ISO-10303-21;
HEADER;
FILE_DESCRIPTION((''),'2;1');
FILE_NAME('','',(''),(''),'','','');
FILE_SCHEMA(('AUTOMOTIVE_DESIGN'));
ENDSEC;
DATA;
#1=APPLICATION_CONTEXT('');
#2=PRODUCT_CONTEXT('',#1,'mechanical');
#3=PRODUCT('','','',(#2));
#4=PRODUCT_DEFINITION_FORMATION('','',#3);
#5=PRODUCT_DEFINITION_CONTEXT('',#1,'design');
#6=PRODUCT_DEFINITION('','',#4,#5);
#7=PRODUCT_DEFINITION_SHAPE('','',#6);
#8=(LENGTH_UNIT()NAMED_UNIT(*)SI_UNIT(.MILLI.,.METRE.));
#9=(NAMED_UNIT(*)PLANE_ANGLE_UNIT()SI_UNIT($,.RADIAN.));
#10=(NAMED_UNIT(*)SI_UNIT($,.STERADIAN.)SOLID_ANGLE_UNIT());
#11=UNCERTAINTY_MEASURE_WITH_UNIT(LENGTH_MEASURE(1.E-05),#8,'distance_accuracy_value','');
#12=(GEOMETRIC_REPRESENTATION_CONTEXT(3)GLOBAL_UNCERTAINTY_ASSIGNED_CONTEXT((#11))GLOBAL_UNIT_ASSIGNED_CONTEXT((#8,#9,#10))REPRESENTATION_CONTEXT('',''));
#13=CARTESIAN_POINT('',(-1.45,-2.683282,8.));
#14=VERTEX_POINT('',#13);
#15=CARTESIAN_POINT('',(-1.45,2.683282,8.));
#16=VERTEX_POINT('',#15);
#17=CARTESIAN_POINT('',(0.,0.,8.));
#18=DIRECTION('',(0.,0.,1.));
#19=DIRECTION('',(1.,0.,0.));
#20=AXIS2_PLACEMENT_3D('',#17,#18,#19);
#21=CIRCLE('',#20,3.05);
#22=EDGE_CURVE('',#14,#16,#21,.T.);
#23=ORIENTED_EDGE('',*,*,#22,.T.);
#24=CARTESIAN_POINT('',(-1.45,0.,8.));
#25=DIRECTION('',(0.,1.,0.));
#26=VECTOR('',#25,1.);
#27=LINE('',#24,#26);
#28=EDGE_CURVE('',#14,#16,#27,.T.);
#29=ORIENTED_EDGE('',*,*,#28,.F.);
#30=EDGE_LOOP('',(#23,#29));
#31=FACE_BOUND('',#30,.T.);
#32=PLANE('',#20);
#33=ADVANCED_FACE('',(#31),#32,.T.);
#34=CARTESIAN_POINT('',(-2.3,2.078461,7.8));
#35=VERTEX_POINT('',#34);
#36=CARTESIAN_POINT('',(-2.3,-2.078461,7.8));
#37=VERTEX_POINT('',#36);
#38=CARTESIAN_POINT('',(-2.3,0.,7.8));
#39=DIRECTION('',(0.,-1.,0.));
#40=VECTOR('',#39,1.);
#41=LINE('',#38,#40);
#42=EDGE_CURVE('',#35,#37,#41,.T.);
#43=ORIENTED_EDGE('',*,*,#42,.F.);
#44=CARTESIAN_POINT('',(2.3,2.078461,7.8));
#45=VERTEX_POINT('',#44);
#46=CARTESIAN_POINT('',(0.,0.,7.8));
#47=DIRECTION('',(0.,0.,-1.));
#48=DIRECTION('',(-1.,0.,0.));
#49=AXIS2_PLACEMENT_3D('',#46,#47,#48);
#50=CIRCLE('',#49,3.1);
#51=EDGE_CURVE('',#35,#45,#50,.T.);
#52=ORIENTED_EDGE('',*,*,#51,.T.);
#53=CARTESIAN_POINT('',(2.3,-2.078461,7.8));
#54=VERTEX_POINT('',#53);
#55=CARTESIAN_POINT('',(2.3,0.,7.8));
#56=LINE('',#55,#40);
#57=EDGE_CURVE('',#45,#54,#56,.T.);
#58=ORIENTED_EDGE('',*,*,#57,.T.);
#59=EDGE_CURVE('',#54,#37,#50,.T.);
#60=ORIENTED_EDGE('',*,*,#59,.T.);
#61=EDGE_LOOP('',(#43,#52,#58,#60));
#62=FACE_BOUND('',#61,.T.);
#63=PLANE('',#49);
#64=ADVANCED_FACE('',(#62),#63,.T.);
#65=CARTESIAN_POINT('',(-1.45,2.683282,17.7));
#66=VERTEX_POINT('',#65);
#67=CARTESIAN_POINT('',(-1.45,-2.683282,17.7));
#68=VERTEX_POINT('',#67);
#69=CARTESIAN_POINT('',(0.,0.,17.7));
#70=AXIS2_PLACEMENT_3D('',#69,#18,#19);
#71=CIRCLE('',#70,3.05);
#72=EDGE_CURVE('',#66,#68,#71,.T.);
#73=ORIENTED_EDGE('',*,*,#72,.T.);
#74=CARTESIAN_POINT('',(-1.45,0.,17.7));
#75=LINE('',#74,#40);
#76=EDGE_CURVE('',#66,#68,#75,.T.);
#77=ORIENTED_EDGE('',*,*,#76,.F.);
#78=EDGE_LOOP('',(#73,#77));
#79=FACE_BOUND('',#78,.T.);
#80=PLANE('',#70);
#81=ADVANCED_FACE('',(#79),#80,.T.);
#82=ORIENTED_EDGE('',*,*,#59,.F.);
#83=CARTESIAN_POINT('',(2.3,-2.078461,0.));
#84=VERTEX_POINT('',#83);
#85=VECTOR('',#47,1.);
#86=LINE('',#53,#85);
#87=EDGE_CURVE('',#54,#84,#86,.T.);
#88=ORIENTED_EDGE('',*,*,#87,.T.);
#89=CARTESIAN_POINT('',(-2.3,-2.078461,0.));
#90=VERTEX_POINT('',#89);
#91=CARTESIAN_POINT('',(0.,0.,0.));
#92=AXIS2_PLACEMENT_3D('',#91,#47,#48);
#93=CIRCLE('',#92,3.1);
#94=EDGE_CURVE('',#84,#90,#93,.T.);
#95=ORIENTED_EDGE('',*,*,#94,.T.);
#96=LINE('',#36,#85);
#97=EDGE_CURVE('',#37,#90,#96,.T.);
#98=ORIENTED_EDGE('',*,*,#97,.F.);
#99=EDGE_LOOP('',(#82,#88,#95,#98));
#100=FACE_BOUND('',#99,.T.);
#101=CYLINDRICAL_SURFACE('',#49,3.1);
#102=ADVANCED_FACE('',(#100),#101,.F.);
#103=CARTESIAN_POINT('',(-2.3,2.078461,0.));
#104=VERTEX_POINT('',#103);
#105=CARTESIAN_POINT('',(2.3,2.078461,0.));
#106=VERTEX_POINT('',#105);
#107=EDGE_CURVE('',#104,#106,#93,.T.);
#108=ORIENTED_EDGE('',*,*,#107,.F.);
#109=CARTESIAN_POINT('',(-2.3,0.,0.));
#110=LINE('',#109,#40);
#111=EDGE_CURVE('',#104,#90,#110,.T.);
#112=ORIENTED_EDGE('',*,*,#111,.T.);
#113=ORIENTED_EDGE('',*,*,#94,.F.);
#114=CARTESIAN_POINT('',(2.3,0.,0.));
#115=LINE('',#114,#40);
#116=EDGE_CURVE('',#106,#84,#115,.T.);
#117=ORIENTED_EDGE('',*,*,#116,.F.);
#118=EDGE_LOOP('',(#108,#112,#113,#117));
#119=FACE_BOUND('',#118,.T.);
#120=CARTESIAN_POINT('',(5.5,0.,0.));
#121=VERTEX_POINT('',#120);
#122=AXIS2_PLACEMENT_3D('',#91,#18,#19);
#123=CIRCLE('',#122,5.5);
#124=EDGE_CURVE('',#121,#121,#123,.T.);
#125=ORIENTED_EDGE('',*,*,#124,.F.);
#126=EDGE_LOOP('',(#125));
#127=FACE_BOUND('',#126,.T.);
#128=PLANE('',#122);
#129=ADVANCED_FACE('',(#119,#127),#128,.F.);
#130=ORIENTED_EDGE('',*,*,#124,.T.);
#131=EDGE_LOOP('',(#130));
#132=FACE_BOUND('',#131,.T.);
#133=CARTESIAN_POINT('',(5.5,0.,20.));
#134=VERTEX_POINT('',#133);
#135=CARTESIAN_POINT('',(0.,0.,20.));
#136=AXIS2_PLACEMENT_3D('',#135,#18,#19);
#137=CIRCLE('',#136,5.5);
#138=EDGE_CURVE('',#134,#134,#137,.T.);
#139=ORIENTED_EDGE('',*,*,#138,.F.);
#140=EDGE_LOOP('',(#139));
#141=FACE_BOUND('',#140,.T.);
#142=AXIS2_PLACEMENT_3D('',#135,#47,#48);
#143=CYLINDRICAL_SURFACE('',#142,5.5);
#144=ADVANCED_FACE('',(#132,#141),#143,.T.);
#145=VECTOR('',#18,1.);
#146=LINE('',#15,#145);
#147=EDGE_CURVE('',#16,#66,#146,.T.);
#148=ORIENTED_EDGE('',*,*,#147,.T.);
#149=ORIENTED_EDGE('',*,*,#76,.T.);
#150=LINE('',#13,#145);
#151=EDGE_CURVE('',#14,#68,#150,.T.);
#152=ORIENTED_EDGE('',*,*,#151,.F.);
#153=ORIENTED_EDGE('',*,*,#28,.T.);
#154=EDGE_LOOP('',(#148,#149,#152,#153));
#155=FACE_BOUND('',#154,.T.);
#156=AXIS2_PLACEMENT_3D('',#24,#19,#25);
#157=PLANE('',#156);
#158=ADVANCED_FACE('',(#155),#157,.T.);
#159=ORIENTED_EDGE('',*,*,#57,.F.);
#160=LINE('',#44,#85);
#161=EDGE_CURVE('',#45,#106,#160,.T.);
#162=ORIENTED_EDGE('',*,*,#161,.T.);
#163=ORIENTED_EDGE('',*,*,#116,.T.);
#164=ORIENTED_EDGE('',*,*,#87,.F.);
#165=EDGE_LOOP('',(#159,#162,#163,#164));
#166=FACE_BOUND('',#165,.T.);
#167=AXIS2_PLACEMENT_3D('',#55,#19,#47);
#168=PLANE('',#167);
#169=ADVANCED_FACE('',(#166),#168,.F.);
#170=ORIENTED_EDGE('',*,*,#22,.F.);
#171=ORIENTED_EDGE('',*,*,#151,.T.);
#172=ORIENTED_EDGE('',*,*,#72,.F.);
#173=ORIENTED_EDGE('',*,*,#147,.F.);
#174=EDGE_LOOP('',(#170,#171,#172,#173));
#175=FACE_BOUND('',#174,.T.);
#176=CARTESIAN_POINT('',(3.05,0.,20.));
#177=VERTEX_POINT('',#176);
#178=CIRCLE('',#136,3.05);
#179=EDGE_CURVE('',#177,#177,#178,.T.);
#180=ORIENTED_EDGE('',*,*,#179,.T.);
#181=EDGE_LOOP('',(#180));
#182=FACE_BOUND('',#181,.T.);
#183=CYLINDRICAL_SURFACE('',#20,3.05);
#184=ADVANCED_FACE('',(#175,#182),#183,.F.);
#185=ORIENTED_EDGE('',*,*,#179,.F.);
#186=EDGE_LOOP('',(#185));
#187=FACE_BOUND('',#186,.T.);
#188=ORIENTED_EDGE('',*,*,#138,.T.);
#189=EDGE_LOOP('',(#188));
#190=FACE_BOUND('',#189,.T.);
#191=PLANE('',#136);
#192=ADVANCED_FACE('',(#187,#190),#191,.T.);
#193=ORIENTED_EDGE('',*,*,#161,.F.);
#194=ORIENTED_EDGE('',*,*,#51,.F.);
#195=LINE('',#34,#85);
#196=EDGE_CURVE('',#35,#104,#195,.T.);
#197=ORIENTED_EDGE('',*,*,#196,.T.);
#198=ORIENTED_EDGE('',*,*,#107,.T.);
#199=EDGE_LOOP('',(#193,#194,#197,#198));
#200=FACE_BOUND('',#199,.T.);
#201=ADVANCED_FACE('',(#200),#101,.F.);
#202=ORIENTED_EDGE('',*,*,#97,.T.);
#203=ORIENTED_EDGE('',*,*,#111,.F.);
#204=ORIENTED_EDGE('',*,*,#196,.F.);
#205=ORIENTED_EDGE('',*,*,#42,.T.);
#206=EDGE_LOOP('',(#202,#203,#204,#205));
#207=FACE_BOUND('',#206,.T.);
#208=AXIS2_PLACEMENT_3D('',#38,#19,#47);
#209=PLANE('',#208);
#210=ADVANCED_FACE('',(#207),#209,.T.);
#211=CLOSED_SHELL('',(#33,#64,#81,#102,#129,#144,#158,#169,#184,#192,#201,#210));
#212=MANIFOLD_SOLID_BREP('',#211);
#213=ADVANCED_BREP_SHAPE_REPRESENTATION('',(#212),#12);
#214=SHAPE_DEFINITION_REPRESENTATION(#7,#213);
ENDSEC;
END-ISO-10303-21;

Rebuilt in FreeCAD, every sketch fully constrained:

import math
import FreeCAD as App
import Part
import Sketcher

V = App.Vector

doc = App.newDocument("Part")
body = doc.addObject("PartDesign::Body", "Body")

# Sketch on XY plane
sketch1 = doc.addObject("Sketcher::SketchObject", "Sketch")
body.addObject(sketch1)
sketch1.AttachmentSupport = (doc.XY_Plane, [""])
sketch1.MapMode = "FlatFace"
sketch1.addGeometry(Part.Circle(V(0, 0, 0), V(0, 0, 1), 6), False)
sketch1.addConstraint([
    Sketcher.Constraint("Coincident", 0, 3, -1, 1),
    Sketcher.Constraint("Diameter", 0, 11.0),
])
pad1 = doc.addObject("PartDesign::Pad", "Pad")
body.addObject(pad1)
pad1.Profile = sketch1
pad1.Length = 20

# Sketch on XY plane
sketch2 = doc.addObject("Sketcher::SketchObject", "Sketch001")
body.addObject(sketch2)
sketch2.AttachmentSupport = (doc.XY_Plane, [""])
sketch2.MapMode = "FlatFace"
sketch2.AttachmentOffset = App.Placement(V(0, 0, 20), App.Rotation())
sketch2.addGeometry([
    Part.ArcOfCircle(Part.Circle(V(0, 0, 0), V(0, 0, 1), 3), math.radians(-118), math.radians(118)),
    Part.LineSegment(V(-1.4, 2.7, 0), V(-1.4, -2.7, 0)),
], False)
sketch2.addConstraint([
    Sketcher.Constraint("Coincident", 0, 1, 1, 2),
    Sketcher.Constraint("Coincident", 1, 1, 0, 2),
    Sketcher.Constraint("Vertical", 1),
    Sketcher.Constraint("Coincident", 0, 3, -1, 1),
    Sketcher.Constraint("Radius", 0, 3.05),
    Sketcher.Constraint("DistanceX", 0, 1, -1, 1, 1.45),
])
pocket1 = doc.addObject("PartDesign::Pocket", "Pocket")
body.addObject(pocket1)
pocket1.Profile = sketch2
pocket1.Length = 12

# Sketch on XY plane
sketch3 = doc.addObject("Sketcher::SketchObject", "Sketch002")
body.addObject(sketch3)
sketch3.AttachmentSupport = (doc.XY_Plane, [""])
sketch3.MapMode = "FlatFace"
sketch3.addGeometry([
    Part.LineSegment(V(-2.3, -2.1, 0), V(-2.3, 2.1, 0)),
    Part.ArcOfCircle(Part.Circle(V(0, 0, 0), V(0, 0, 1), 3.1), math.radians(42), math.radians(138)),
    Part.LineSegment(V(2.3, 2.1, 0), V(2.3, -2.1, 0)),
    Part.ArcOfCircle(Part.Circle(V(0, 0, 0), V(0, 0, 1), 3.1), math.radians(-138), math.radians(-42)),
], False)
sketch3.addConstraint([
    Sketcher.Constraint("Coincident", 0, 2, 1, 2),
    Sketcher.Constraint("Coincident", 1, 1, 2, 1),
    Sketcher.Constraint("Coincident", 2, 2, 3, 2),
    Sketcher.Constraint("Coincident", 3, 1, 0, 1),
    Sketcher.Constraint("Vertical", 0),
    Sketcher.Constraint("Vertical", 2),
    Sketcher.Constraint("Coincident", 1, 3, -1, 1),
    Sketcher.Constraint("Coincident", 3, 3, -1, 1),
    Sketcher.Constraint("Equal", 1, 3),
    Sketcher.Constraint("Horizontal", 0, 2, 1, 1),
    Sketcher.Constraint("Radius", 1, 3.1),
    Sketcher.Constraint("DistanceX", 0, 2, -1, 1, 2.3),
])
pocket2 = doc.addObject("PartDesign::Pocket", "Pocket001")
body.addObject(pocket2)
pocket2.Profile = sketch3
pocket2.Length = 7.8
pocket2.Reversed = True

# Sketch on XY plane
sketch4 = doc.addObject("Sketcher::SketchObject", "Sketch003")
body.addObject(sketch4)
sketch4.AttachmentSupport = (doc.XY_Plane, [""])
sketch4.MapMode = "FlatFace"
sketch4.AttachmentOffset = App.Placement(V(0, 0, 20), App.Rotation())
sketch4.addGeometry(Part.Circle(V(0, 0, 0), V(0, 0, 1), 3), False)
sketch4.addConstraint([
    Sketcher.Constraint("Coincident", 0, 3, -1, 1),
    Sketcher.Constraint("Diameter", 0, 6.1),
])
pocket3 = doc.addObject("PartDesign::Pocket", "Pocket002")
body.addObject(pocket3)
pocket3.Profile = sketch4
pocket3.Length = 2.3

doc.recompute()
